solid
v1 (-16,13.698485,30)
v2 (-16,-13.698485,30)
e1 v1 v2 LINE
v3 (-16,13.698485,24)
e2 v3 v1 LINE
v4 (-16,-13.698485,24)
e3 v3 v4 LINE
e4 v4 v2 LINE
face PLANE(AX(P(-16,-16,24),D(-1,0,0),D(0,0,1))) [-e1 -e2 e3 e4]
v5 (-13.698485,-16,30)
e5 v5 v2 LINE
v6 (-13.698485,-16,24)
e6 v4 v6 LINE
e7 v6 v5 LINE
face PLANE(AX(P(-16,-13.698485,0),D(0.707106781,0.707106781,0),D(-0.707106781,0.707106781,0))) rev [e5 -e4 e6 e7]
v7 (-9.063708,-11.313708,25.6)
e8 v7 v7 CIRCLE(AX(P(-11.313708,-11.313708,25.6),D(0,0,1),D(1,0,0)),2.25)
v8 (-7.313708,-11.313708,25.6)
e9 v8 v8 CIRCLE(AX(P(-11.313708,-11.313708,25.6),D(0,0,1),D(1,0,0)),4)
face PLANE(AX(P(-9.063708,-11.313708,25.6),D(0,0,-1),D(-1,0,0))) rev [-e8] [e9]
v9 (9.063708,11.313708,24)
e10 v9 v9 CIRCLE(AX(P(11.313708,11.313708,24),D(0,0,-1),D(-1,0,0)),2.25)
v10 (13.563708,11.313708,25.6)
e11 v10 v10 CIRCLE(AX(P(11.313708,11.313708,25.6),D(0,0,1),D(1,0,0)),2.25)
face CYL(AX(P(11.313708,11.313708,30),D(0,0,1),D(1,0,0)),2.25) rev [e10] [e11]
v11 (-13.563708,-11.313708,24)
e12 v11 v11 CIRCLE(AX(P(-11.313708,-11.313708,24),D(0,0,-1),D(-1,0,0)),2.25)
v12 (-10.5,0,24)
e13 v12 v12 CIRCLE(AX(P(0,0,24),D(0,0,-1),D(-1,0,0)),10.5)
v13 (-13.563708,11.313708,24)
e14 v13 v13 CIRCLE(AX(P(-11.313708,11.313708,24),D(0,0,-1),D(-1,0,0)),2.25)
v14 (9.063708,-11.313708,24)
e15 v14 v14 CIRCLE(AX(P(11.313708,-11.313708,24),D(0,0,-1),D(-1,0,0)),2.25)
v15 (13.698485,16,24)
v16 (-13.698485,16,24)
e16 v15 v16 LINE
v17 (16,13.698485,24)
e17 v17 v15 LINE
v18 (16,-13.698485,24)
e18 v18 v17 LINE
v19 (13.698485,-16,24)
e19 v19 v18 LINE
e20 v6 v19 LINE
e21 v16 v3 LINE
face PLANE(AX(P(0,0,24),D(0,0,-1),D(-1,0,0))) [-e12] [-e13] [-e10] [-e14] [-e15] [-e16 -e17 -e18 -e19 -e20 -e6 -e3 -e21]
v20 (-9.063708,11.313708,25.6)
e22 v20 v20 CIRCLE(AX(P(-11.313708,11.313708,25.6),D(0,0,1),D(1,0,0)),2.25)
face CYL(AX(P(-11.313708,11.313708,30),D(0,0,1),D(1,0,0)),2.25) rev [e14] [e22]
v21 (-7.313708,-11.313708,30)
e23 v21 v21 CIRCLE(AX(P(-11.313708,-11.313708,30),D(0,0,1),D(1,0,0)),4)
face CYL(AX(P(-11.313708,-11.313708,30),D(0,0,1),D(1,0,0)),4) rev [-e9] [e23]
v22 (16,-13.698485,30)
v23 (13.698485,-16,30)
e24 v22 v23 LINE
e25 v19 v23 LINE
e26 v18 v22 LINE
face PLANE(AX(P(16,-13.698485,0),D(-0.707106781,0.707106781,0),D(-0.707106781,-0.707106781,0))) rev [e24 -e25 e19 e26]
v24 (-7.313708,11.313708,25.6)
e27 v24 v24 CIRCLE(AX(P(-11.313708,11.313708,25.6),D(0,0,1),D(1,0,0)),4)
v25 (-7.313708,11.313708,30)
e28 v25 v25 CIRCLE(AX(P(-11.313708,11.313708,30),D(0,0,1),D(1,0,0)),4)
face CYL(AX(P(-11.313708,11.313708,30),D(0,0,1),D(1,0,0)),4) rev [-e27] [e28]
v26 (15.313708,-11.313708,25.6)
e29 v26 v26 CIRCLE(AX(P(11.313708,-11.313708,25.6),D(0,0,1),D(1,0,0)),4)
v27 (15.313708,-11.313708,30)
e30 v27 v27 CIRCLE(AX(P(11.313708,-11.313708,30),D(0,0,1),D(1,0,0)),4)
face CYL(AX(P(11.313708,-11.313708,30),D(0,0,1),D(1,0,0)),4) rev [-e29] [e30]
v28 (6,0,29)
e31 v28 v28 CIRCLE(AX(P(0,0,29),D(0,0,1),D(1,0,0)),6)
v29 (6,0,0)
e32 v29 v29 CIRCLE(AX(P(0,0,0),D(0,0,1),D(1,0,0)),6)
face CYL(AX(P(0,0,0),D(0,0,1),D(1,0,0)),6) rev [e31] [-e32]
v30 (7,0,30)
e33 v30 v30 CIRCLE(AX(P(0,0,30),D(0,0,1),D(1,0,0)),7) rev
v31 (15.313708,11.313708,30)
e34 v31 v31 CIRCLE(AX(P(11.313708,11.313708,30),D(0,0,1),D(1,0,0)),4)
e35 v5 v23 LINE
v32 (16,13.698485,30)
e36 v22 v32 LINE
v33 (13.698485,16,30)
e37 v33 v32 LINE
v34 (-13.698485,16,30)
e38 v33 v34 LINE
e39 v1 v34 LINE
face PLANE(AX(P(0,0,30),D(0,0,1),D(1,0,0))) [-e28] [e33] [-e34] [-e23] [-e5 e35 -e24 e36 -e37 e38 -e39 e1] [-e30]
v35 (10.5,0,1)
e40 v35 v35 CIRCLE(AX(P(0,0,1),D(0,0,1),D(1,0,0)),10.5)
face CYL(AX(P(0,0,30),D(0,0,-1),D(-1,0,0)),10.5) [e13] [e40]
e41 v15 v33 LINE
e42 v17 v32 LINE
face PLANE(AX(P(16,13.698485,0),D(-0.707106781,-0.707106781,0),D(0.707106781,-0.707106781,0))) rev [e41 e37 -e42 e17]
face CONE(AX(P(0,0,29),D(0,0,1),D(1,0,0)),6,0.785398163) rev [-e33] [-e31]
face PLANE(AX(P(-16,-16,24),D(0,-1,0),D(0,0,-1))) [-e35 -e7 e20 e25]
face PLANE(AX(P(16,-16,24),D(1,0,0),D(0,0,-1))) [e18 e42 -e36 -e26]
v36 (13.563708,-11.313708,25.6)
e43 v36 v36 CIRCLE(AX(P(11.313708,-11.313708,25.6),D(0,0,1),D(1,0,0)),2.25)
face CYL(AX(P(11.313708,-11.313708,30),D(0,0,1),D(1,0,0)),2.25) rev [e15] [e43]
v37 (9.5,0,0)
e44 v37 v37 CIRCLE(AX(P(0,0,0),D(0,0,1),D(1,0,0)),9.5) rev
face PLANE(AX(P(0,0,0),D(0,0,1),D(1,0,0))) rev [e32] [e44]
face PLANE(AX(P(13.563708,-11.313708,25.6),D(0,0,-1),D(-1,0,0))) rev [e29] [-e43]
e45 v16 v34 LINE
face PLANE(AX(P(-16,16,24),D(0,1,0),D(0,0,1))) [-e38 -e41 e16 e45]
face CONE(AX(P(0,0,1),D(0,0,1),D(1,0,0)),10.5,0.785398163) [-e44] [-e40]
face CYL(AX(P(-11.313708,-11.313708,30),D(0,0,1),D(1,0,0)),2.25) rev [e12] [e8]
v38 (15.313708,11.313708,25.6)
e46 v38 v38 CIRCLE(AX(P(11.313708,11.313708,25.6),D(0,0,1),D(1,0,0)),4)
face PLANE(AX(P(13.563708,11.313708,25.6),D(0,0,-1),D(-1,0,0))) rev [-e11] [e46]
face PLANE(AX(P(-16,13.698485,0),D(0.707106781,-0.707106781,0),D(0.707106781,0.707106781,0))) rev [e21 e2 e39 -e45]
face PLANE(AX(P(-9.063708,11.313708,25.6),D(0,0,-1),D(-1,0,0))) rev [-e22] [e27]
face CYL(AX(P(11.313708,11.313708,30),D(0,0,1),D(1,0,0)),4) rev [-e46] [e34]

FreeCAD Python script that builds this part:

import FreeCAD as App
import Part
import Sketcher


def edges_at(feature, points):
    """Names of the edges that pass closest to the given points."""
    edges = feature.Shape.Edges
    near = lambda p: min(range(len(edges)), key=lambda i: edges[i].distToShape(Part.Vertex(*p))[0])
    return sorted({f"Edge{near(p) + 1}" for p in points})


def add_polygon(sketch, points):
    """Adds a closed chain of lines whose ends are joined by coincident constraints."""
    first, n = sketch.GeometryCount, len(points)
    for a, b in zip(points, points[1:] + points[:1]):
        sketch.addGeometry(Part.LineSegment(App.Vector(*a, 0), App.Vector(*b, 0)), False)
    for i in range(n):
        sketch.addConstraint(Sketcher.Constraint("Coincident", first + i, 2, first + (i + 1) % n, 1))

doc = App.newDocument("Part")
body = doc.addObject("PartDesign::Body", "Body")

# Sketch on XY plane
sketch1 = doc.addObject("Sketcher::SketchObject", "Sketch")
body.addObject(sketch1)
sketch1.AttachmentSupport = (doc.XY_Plane, [""])
sketch1.MapMode = "FlatFace"
sketch1.addGeometry(Part.Circle(App.Vector(0, 0, 0), App.Vector(0, 0, 1), 10), False)
sketch1.addConstraint(Sketcher.Constraint("Coincident", 0, 3, -1, 1))
sketch1.addConstraint(Sketcher.Constraint("Diameter", 0, 21.0))
pad1 = doc.addObject("PartDesign::Pad", "Pad")
body.addObject(pad1)
pad1.Profile = sketch1
pad1.Length = 30

# Sketch on XY plane
sketch2 = doc.addObject("Sketcher::SketchObject", "Sketch001")
body.addObject(sketch2)
sketch2.AttachmentSupport = (doc.XY_Plane, [""])
sketch2.MapMode = "FlatFace"
sketch2.AttachmentOffset = App.Placement(App.Vector(0, 0, 30), App.Rotation())
add_polygon(sketch2, [(-16, 16), (-16, -16), (16, -16), (16, 16)])  # lines 0-3
sketch2.addConstraint(Sketcher.Constraint("Vertical", 0))
sketch2.addConstraint(Sketcher.Constraint("Horizontal", 1))
sketch2.addConstraint(Sketcher.Constraint("Vertical", 2))
sketch2.addConstraint(Sketcher.Constraint("Horizontal", 3))
sketch2.addConstraint(Sketcher.Constraint("Symmetric", 0, 2, 2, 2, -1, 1))
sketch2.addConstraint(Sketcher.Constraint("Equal", 3, 0))
sketch2.addConstraint(Sketcher.Constraint("DistanceX", 1, 1, 1, 2, 32.0))
pad2 = doc.addObject("PartDesign::Pad", "Pad001")
body.addObject(pad2)
pad2.Profile = sketch2
pad2.Length = 6
pad2.Reversed = True

# Sketch on XY plane
sketch3 = doc.addObject("Sketcher::SketchObject", "Sketch002")
body.addObject(sketch3)
sketch3.AttachmentSupport = (doc.XY_Plane, [""])
sketch3.MapMode = "FlatFace"
sketch3.AttachmentOffset = App.Placement(App.Vector(0, 0, 30), App.Rotation())
add_polygon(sketch3, [(-16, 16), (-16, 13.7), (-13.7, 16)])  # lines 0-2
add_polygon(sketch3, [(16, 16), (13.7, 16), (16, 13.7)])  # lines 3-5
add_polygon(sketch3, [(16, -16), (16, -13.7), (13.7, -16)])  # lines 6-8
add_polygon(sketch3, [(-16, -16), (-13.7, -16), (-16, -13.7)])  # lines 9-11
sketch3.addConstraint(Sketcher.Constraint("Vertical", 0))
sketch3.addConstraint(Sketcher.Constraint("Horizontal", 2))
sketch3.addConstraint(Sketcher.Constraint("Horizontal", 3))
sketch3.addConstraint(Sketcher.Constraint("Vertical", 5))
sketch3.addConstraint(Sketcher.Constraint("Vertical", 6))
sketch3.addConstraint(Sketcher.Constraint("Horizontal", 8))
sketch3.addConstraint(Sketcher.Constraint("Horizontal", 9))
sketch3.addConstraint(Sketcher.Constraint("Vertical", 11))
sketch3.addConstraint(Sketcher.Constraint("Symmetric", 0, 2, 6, 2, -1, 1))
sketch3.addConstraint(Sketcher.Constraint("Symmetric", 1, 2, 7, 2, -1, 1))
sketch3.addConstraint(Sketcher.Constraint("Symmetric", 3, 2, 9, 2, -1, 1))
sketch3.addConstraint(Sketcher.Constraint("Symmetric", 4, 2, 10, 2, -1, 1))
sketch3.addConstraint(Sketcher.Constraint("Symmetric", 1, 2, 3, 2, -2))
sketch3.addConstraint(Sketcher.Constraint("Symmetric", 0, 2, 4, 2, -2))
sketch3.addConstraint(Sketcher.Constraint("Perpendicular", 1, 4))
sketch3.addConstraint(Sketcher.Constraint("DistanceX", 0, 2, -1, 1, 16.0))
sketch3.addConstraint(Sketcher.Constraint("DistanceY", -1, 1, 1, 2, 16.0))
sketch3.addConstraint(Sketcher.Constraint("DistanceX", 2, 2, 2, 1, 2.301515))
pocket1 = doc.addObject("PartDesign::Pocket", "Pocket")
body.addObject(pocket1)
pocket1.Profile = sketch3
pocket1.Type = "ThroughAll"

# Sketch on XY plane
sketch4 = doc.addObject("Sketcher::SketchObject", "Sketch003")
body.addObject(sketch4)
sketch4.AttachmentSupport = (doc.XY_Plane, [""])
sketch4.MapMode = "FlatFace"
sketch4.AttachmentOffset = App.Placement(App.Vector(0, 0, 30), App.Rotation())
sketch4.addGeometry(Part.Circle(App.Vector(-11.3, 11.3, 0), App.Vector(0, 0, 1), 2.2), False)
sketch4.addGeometry(Part.Circle(App.Vector(11.3, 11.3, 0), App.Vector(0, 0, 1), 2.2), False)
sketch4.addGeometry(Part.Circle(App.Vector(11.3, -11.3, 0), App.Vector(0, 0, 1), 2.2), False)
sketch4.addGeometry(Part.Circle(App.Vector(-11.3, -11.3, 0), App.Vector(0, 0, 1), 2.2), False)
sketch4.addConstraint(Sketcher.Constraint("Equal", 0, 1))
sketch4.addConstraint(Sketcher.Constraint("Equal", 1, 2))
sketch4.addConstraint(Sketcher.Constraint("Equal", 2, 3))
sketch4.addConstraint(Sketcher.Constraint("Symmetric", 0, 3, 2, 3, -1, 1))
sketch4.addConstraint(Sketcher.Constraint("Symmetric", 1, 3, 3, 3, -1, 1))
sketch4.addConstraint(Sketcher.Constraint("Symmetric", 0, 3, 1, 3, -2))
sketch4.addConstraint(Sketcher.Constraint("Diameter", 0, 4.5))
sketch4.addConstraint(Sketcher.Constraint("DistanceX", 0, 3, -1, 1, 11.313708))
sketch4.addConstraint(Sketcher.Constraint("DistanceY", -1, 1, 0, 3, 11.313708))
doc.recompute()
hole = doc.addObject("PartDesign::Hole", "Hole")
body.addObject(hole)
hole.Profile = sketch4
hole.ThreadType = "None"
hole.Diameter = 4.5
hole.DepthType = "Dimension"
hole.Depth = 22
hole.DrillPoint = "Angled"
hole.DrillPointAngle = 118
hole.HoleCutType = "Counterbore"
hole.HoleCutDiameter = 8
hole.HoleCutDepth = 4.4

# Sketch on XY plane
sketch5 = doc.addObject("Sketcher::SketchObject", "Sketch004")
body.addObject(sketch5)
sketch5.AttachmentSupport = (doc.XY_Plane, [""])
sketch5.MapMode = "FlatFace"
sketch5.AttachmentOffset = App.Placement(App.Vector(0, 0, 30), App.Rotation())
sketch5.addGeometry(Part.Circle(App.Vector(0, 0, 0), App.Vector(0, 0, 1), 6), False)
sketch5.addConstraint(Sketcher.Constraint("Coincident", 0, 3, -1, 1))
sketch5.addConstraint(Sketcher.Constraint("Diameter", 0, 12.0))
pocket2 = doc.addObject("PartDesign::Pocket", "Pocket001")
body.addObject(pocket2)
pocket2.Profile = sketch5
pocket2.Type = "ThroughAll"
doc.recompute()

chamfer = doc.addObject("PartDesign::Chamfer", "Chamfer")
body.addObject(chamfer)
chamfer.Base = (pocket2, edges_at(pocket2, [(-6, 0, 30), (-10.5, 0, 0)]))
chamfer.Size = 1

doc.recompute()
